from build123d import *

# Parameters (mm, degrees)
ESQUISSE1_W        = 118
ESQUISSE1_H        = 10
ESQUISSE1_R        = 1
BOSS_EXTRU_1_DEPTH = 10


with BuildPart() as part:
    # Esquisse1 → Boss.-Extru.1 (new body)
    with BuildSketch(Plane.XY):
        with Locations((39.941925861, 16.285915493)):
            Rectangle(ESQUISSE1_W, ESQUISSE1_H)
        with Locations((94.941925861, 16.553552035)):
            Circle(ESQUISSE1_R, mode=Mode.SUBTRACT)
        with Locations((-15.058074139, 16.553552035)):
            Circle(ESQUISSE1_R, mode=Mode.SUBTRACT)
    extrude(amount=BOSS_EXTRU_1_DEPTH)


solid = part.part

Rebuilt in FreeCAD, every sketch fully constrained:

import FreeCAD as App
import Part
import Sketcher

V = App.Vector
Q = App.Units.Quantity

doc = App.newDocument("Part")
body = doc.addObject("PartDesign::Body", "Body")

sketch1 = body.newObject("Sketcher::SketchObject", "Sketch")
sketch1.AttachmentSupport = (doc.getObject("XY_Plane"), [""])
sketch1.MapMode = "FlatFace"
sketch1.addGeometry([
    Part.LineSegment(V(-19.058074, 21.285915, 0), V(-19.058074, 11.285915, 0)),
    Part.LineSegment(V(-19.058074, 11.285915, 0), V(98.941926, 11.285915, 0)),
    Part.LineSegment(V(98.941926, 11.285915, 0), V(98.941926, 21.285915, 0)),
    Part.LineSegment(V(98.941926, 21.285915, 0), V(-19.058074, 21.285915, 0)),
    Part.Circle(V(-15.058074, 16.553552, 0), V(0, 0, 1), 1),
    Part.Circle(V(94.941926, 16.553552, 0), V(0, 0, 1), 1),
], False)
sketch1.addConstraint([
    Sketcher.Constraint("Coincident", 0, 2, 1, 1),
    Sketcher.Constraint("Coincident", 1, 2, 2, 1),
    Sketcher.Constraint("Coincident", 2, 2, 3, 1),
    Sketcher.Constraint("Coincident", 3, 2, 0, 1),
    Sketcher.Constraint("Vertical", 0),
    Sketcher.Constraint("Horizontal", 1),
    Sketcher.Constraint("Vertical", 2),
    Sketcher.Constraint("Horizontal", 3),
    Sketcher.Constraint("Equal", 4, 5),
    Sketcher.Constraint("Horizontal", 4, 3, 5, 3),
    Sketcher.Constraint("Diameter", 4, Q("2 mm")),
    Sketcher.Constraint("DistanceX", 1, 1, 1, 2, Q("118 mm")),
    Sketcher.Constraint("DistanceY", 0, 2, 0, 1, Q("10 mm")),
    Sketcher.Constraint("DistanceX", 4, 3, 5, 3, Q("110 mm")),
    Sketcher.Constraint("DistanceX", 0, 2, 4, 3, Q("4 mm")),
    Sketcher.Constraint("DistanceX", 4, 3, -1, 1, Q("15.058074 mm")),
    Sketcher.Constraint("DistanceY", -1, 1, 4, 3, Q("16.553552 mm")),
    Sketcher.Constraint("DistanceY", -1, 1, 0, 2, Q("11.285915 mm")),
])
pad1 = body.newObject("PartDesign::Pad", "Pad")
pad1.Profile = sketch1
pad1.Length = 10

doc.recompute()
